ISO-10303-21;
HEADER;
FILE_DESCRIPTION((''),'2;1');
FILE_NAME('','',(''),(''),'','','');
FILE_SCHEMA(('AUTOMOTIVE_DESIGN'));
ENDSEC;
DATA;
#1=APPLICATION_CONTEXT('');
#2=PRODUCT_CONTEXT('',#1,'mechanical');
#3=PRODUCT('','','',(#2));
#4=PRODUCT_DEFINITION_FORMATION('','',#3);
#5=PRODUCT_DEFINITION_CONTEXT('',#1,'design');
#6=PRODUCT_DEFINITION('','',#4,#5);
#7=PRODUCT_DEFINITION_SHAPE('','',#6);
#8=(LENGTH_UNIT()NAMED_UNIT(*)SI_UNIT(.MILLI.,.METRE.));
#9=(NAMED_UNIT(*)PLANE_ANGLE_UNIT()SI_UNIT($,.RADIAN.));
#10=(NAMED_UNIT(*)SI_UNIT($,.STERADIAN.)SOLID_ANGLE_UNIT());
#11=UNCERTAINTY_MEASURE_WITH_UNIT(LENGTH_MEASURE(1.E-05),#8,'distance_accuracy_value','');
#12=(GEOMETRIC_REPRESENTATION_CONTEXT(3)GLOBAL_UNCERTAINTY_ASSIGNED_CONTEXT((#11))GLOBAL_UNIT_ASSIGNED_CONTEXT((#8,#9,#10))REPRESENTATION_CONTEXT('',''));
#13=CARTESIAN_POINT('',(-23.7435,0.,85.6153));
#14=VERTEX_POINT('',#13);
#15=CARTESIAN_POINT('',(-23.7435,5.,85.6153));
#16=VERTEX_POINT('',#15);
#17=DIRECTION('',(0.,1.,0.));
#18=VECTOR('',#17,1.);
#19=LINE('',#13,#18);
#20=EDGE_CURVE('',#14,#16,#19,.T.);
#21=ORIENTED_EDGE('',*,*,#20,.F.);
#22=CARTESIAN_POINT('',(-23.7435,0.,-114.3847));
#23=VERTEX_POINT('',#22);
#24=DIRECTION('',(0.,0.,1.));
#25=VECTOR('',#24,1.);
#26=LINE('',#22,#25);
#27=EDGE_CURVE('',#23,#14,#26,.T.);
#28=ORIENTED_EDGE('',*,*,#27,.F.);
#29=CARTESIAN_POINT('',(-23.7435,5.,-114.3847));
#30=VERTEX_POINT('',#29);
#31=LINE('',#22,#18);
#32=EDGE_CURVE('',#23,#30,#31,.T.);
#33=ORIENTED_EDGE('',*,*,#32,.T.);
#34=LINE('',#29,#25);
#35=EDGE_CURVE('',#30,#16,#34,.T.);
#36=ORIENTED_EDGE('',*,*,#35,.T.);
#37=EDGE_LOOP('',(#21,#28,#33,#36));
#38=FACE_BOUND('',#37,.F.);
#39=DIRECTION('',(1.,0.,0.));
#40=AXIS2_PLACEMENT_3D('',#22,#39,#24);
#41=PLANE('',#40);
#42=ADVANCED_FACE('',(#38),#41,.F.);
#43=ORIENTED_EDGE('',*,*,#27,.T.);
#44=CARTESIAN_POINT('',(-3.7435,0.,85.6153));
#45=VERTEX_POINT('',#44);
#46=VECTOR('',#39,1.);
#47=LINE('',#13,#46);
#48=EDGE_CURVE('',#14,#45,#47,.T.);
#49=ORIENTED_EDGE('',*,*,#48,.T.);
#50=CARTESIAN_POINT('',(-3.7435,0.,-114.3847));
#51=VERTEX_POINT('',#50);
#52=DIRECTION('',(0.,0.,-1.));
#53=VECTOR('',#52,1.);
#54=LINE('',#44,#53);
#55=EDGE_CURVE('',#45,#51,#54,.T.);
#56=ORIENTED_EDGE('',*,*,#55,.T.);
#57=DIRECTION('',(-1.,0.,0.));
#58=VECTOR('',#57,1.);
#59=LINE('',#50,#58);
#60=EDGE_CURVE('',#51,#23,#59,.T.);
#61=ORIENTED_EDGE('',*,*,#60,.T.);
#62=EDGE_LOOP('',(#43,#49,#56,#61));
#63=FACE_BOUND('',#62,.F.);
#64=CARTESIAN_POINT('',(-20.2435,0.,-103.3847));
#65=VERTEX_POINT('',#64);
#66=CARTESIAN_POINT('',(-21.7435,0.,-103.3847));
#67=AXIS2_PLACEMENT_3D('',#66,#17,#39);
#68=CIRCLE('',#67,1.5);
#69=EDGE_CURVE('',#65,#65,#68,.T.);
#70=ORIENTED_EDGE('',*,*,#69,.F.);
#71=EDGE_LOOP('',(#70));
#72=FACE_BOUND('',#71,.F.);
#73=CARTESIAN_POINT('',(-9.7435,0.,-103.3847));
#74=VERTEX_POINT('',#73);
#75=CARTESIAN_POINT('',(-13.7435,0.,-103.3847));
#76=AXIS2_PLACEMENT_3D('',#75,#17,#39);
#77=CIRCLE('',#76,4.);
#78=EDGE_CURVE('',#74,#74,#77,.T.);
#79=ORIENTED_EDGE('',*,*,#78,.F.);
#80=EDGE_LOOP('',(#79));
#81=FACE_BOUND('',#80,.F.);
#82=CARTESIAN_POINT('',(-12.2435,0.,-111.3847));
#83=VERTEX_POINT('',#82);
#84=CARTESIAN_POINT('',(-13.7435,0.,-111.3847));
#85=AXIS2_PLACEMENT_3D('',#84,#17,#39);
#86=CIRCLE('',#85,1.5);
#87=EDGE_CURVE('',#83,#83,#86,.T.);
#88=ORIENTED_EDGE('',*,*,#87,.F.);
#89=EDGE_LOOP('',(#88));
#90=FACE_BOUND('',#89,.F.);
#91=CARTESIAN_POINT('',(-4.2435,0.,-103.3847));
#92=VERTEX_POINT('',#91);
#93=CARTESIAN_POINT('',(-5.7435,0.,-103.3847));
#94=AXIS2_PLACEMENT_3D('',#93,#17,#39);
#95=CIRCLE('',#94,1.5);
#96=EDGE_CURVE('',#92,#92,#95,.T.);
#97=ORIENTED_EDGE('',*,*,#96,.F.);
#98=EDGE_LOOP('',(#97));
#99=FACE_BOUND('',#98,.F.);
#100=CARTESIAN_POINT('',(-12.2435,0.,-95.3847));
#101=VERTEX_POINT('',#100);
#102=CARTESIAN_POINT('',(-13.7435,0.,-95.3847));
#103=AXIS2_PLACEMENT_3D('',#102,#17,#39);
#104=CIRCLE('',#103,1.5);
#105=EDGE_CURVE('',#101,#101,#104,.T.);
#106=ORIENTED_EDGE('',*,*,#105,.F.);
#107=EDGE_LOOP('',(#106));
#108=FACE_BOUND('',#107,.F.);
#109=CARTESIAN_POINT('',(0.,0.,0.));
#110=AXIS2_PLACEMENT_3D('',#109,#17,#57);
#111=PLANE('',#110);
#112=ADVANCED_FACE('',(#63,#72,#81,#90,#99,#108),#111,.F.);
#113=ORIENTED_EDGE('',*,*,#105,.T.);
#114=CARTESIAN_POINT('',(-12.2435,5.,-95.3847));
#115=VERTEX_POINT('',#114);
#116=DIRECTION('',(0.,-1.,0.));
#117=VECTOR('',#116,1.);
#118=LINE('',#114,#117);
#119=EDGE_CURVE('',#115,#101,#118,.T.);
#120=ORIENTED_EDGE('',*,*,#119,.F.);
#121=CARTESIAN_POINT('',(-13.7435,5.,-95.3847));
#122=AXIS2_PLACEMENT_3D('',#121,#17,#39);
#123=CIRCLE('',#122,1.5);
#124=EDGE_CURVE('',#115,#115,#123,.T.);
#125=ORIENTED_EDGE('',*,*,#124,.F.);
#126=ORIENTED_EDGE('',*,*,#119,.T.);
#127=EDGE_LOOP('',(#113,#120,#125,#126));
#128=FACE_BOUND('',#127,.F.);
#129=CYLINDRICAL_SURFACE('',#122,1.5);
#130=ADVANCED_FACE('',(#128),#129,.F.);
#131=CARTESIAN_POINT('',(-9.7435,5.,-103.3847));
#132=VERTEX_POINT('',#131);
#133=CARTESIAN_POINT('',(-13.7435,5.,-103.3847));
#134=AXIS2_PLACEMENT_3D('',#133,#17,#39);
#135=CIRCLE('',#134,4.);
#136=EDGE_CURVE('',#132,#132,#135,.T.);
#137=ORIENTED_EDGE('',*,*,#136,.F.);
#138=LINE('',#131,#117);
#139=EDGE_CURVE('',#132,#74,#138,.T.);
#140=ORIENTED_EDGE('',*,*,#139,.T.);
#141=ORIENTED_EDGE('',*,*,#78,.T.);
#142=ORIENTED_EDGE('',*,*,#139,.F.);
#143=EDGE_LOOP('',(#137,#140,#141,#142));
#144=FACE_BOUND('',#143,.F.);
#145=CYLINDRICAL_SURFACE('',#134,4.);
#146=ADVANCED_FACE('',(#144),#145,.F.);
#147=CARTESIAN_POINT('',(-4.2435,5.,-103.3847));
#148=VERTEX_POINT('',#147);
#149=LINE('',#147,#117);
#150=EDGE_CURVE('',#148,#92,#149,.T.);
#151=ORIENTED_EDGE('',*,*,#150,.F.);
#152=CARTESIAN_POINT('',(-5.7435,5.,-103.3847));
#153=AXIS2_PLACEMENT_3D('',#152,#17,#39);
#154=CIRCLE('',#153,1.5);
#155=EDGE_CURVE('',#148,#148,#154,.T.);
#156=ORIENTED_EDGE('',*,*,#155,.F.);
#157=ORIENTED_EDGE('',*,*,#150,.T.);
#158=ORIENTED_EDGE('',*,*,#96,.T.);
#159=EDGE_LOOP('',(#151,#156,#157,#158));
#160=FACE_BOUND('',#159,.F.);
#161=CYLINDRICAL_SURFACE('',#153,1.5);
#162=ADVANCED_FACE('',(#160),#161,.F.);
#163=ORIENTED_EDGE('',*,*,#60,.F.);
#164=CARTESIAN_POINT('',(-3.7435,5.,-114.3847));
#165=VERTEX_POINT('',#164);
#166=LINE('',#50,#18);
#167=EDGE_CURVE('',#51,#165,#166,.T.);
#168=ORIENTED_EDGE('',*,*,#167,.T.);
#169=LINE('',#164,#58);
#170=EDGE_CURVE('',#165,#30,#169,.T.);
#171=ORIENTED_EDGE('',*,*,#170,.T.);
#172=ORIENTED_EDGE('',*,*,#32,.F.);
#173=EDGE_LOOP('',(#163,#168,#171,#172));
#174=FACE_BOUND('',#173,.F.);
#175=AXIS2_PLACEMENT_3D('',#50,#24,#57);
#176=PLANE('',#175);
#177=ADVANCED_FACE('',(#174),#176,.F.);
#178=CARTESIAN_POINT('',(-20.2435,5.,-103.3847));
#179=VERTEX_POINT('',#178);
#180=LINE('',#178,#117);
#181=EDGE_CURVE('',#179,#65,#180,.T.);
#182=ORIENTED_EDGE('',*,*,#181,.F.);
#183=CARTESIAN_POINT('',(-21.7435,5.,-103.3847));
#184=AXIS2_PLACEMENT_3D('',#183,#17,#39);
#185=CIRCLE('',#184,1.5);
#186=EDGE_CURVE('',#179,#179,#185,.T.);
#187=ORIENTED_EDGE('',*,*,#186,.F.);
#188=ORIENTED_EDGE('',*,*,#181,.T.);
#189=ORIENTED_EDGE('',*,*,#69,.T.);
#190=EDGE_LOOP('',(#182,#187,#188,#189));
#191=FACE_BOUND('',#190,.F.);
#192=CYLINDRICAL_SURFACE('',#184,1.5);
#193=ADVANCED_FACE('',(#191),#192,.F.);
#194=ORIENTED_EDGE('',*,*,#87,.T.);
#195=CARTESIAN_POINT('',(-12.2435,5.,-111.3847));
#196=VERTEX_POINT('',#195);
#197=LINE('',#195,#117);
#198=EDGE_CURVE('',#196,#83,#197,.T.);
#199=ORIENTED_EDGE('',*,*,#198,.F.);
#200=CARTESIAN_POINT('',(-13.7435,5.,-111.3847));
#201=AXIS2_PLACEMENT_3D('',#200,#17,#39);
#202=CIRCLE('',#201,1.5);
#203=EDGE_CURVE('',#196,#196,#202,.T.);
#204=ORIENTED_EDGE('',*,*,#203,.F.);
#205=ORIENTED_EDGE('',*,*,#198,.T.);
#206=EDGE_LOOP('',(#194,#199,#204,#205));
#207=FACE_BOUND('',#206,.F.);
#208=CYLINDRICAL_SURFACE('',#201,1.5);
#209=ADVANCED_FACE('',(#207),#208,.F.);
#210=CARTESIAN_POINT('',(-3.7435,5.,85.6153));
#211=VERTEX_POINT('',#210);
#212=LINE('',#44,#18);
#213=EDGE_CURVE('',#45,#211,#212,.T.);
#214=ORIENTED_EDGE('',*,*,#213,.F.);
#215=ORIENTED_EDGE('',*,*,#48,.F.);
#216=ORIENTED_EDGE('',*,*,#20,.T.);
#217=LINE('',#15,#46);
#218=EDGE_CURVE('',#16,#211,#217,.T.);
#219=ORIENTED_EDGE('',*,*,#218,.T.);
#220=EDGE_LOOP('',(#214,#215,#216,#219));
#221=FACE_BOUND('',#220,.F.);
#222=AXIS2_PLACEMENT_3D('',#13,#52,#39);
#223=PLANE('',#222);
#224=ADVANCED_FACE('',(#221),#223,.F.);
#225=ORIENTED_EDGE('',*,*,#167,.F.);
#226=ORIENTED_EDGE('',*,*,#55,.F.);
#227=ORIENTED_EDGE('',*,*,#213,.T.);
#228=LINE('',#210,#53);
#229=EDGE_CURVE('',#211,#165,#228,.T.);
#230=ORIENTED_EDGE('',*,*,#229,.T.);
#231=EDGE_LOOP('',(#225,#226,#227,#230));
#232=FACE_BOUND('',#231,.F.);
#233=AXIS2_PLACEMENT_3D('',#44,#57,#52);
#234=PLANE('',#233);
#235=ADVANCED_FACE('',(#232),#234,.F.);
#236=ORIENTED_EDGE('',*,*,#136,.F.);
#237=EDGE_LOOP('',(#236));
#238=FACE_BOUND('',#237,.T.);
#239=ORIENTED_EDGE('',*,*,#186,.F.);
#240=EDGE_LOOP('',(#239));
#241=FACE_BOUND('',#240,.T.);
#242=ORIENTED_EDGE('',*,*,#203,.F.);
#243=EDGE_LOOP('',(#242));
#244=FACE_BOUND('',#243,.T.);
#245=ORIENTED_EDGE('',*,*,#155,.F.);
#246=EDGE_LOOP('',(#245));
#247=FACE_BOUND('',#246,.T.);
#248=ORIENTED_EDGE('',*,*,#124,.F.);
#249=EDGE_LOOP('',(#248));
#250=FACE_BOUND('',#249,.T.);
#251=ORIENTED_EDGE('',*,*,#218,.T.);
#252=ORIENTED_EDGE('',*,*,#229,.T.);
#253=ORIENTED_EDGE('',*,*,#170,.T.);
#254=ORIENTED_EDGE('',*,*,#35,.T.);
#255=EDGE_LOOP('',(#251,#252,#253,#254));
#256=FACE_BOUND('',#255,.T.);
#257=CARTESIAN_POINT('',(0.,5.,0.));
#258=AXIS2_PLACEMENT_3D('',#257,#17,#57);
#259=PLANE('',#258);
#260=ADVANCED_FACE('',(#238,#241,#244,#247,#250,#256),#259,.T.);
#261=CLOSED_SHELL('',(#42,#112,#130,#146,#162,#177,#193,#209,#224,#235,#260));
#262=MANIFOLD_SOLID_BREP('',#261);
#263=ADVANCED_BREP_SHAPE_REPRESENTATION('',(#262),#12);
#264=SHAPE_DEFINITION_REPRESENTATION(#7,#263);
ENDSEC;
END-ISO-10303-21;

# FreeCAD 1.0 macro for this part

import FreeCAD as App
import Part
import Sketcher
from FreeCAD import Vector

doc = App.newDocument("Part")
body = doc.addObject("PartDesign::Body", "Body")

# Sketch on XZ plane
sketch1 = doc.addObject("Sketcher::SketchObject", "Sketch")
body.addObject(sketch1)
sketch1.AttachmentSupport = (doc.XZ_Plane, [""])
sketch1.MapMode = "FlatFace"
sketch1.addGeometry([
    Part.LineSegment(Vector(-24, -114, 0), Vector(-24, 86, 0)),
    Part.LineSegment(Vector(-24, 86, 0), Vector(-4, 86, 0)),
    Part.LineSegment(Vector(-4, 86, 0), Vector(-4, -114, 0)),
    Part.LineSegment(Vector(-4, -114, 0), Vector(-24, -114, 0)),
], False)
sketch1.addConstraint([
    Sketcher.Constraint("Coincident", 0, 2, 1, 1),
    Sketcher.Constraint("Coincident", 1, 2, 2, 1),
    Sketcher.Constraint("Coincident", 2, 2, 3, 1),
    Sketcher.Constraint("Coincident", 3, 2, 0, 1),
    Sketcher.Constraint("Vertical", 0),
    Sketcher.Constraint("Horizontal", 1),
    Sketcher.Constraint("Vertical", 2),
    Sketcher.Constraint("Horizontal", 3),
    Sketcher.Constraint("DistanceX", 1, 1, 1, 2, 20.0),
    Sketcher.Constraint("DistanceY", 0, 1, 0, 2, 200.0),
    Sketcher.Constraint("DistanceX", 0, 2, -1, 1, 23.7435),
    Sketcher.Constraint("DistanceY", -1, 1, 0, 2, 85.6153),
])
pad1 = doc.addObject("PartDesign::Pad", "Pad")
body.addObject(pad1)
pad1.Profile = sketch1
pad1.Length = 5
pad1.Reversed = True

# Sketch on XZ plane
sketch2 = doc.addObject("Sketcher::SketchObject", "Sketch001")
body.addObject(sketch2)
sketch2.AttachmentSupport = (doc.XZ_Plane, [""])
sketch2.MapMode = "FlatFace"
sketch2.AttachmentOffset = App.Placement(Vector(0, 0, -5), App.Rotation())
sketch2.addGeometry([
    Part.Circle(Vector(-13.7, -103.4, 0), Vector(0, 0, 1), 4),  # 0
    Part.Circle(Vector(-13.7, -111.4, 0), Vector(0, 0, 1), 1.5),  # 1
    Part.Circle(Vector(-5.7, -103.4, 0), Vector(0, 0, 1), 1.5),  # 2
    Part.Circle(Vector(-21.7, -103.4, 0), Vector(0, 0, 1), 1.5),  # 3
    Part.Circle(Vector(-13.7, -95.4, 0), Vector(0, 0, 1), 1.5),  # 4
], False)
sketch2.addConstraint([
    Sketcher.Constraint("Equal", 1, 2),
    Sketcher.Constraint("Equal", 2, 3),
    Sketcher.Constraint("Equal", 3, 4),
    Sketcher.Constraint("Horizontal", 0, 3, 2, 3),
    Sketcher.Constraint("Horizontal", 2, 3, 3, 3),
    Sketcher.Constraint("Vertical", 0, 3, 1, 3),
    Sketcher.Constraint("Vertical", 1, 3, 4, 3),
    Sketcher.Constraint("Diameter", 0, 8.0),
    Sketcher.Constraint("Diameter", 1, 3.0),
    Sketcher.Constraint("DistanceY", 1, 3, 0, 3, 8.0),
    Sketcher.Constraint("DistanceX", 0, 3, 2, 3, 8.0),
    Sketcher.Constraint("DistanceX", 3, 3, 0, 3, 8.0),
    Sketcher.Constraint("DistanceY", 0, 3, 4, 3, 8.0),
    Sketcher.Constraint("DistanceX", 0, 3, -1, 1, 13.7435),
    Sketcher.Constraint("DistanceY", 0, 3, -1, 1, 103.3847),
])
pocket1 = doc.addObject("PartDesign::Pocket", "Pocket")
body.addObject(pocket1)
pocket1.Profile = sketch2
pocket1.Type = "ThroughAll"
pocket1.Reversed = True

doc.recompute()
